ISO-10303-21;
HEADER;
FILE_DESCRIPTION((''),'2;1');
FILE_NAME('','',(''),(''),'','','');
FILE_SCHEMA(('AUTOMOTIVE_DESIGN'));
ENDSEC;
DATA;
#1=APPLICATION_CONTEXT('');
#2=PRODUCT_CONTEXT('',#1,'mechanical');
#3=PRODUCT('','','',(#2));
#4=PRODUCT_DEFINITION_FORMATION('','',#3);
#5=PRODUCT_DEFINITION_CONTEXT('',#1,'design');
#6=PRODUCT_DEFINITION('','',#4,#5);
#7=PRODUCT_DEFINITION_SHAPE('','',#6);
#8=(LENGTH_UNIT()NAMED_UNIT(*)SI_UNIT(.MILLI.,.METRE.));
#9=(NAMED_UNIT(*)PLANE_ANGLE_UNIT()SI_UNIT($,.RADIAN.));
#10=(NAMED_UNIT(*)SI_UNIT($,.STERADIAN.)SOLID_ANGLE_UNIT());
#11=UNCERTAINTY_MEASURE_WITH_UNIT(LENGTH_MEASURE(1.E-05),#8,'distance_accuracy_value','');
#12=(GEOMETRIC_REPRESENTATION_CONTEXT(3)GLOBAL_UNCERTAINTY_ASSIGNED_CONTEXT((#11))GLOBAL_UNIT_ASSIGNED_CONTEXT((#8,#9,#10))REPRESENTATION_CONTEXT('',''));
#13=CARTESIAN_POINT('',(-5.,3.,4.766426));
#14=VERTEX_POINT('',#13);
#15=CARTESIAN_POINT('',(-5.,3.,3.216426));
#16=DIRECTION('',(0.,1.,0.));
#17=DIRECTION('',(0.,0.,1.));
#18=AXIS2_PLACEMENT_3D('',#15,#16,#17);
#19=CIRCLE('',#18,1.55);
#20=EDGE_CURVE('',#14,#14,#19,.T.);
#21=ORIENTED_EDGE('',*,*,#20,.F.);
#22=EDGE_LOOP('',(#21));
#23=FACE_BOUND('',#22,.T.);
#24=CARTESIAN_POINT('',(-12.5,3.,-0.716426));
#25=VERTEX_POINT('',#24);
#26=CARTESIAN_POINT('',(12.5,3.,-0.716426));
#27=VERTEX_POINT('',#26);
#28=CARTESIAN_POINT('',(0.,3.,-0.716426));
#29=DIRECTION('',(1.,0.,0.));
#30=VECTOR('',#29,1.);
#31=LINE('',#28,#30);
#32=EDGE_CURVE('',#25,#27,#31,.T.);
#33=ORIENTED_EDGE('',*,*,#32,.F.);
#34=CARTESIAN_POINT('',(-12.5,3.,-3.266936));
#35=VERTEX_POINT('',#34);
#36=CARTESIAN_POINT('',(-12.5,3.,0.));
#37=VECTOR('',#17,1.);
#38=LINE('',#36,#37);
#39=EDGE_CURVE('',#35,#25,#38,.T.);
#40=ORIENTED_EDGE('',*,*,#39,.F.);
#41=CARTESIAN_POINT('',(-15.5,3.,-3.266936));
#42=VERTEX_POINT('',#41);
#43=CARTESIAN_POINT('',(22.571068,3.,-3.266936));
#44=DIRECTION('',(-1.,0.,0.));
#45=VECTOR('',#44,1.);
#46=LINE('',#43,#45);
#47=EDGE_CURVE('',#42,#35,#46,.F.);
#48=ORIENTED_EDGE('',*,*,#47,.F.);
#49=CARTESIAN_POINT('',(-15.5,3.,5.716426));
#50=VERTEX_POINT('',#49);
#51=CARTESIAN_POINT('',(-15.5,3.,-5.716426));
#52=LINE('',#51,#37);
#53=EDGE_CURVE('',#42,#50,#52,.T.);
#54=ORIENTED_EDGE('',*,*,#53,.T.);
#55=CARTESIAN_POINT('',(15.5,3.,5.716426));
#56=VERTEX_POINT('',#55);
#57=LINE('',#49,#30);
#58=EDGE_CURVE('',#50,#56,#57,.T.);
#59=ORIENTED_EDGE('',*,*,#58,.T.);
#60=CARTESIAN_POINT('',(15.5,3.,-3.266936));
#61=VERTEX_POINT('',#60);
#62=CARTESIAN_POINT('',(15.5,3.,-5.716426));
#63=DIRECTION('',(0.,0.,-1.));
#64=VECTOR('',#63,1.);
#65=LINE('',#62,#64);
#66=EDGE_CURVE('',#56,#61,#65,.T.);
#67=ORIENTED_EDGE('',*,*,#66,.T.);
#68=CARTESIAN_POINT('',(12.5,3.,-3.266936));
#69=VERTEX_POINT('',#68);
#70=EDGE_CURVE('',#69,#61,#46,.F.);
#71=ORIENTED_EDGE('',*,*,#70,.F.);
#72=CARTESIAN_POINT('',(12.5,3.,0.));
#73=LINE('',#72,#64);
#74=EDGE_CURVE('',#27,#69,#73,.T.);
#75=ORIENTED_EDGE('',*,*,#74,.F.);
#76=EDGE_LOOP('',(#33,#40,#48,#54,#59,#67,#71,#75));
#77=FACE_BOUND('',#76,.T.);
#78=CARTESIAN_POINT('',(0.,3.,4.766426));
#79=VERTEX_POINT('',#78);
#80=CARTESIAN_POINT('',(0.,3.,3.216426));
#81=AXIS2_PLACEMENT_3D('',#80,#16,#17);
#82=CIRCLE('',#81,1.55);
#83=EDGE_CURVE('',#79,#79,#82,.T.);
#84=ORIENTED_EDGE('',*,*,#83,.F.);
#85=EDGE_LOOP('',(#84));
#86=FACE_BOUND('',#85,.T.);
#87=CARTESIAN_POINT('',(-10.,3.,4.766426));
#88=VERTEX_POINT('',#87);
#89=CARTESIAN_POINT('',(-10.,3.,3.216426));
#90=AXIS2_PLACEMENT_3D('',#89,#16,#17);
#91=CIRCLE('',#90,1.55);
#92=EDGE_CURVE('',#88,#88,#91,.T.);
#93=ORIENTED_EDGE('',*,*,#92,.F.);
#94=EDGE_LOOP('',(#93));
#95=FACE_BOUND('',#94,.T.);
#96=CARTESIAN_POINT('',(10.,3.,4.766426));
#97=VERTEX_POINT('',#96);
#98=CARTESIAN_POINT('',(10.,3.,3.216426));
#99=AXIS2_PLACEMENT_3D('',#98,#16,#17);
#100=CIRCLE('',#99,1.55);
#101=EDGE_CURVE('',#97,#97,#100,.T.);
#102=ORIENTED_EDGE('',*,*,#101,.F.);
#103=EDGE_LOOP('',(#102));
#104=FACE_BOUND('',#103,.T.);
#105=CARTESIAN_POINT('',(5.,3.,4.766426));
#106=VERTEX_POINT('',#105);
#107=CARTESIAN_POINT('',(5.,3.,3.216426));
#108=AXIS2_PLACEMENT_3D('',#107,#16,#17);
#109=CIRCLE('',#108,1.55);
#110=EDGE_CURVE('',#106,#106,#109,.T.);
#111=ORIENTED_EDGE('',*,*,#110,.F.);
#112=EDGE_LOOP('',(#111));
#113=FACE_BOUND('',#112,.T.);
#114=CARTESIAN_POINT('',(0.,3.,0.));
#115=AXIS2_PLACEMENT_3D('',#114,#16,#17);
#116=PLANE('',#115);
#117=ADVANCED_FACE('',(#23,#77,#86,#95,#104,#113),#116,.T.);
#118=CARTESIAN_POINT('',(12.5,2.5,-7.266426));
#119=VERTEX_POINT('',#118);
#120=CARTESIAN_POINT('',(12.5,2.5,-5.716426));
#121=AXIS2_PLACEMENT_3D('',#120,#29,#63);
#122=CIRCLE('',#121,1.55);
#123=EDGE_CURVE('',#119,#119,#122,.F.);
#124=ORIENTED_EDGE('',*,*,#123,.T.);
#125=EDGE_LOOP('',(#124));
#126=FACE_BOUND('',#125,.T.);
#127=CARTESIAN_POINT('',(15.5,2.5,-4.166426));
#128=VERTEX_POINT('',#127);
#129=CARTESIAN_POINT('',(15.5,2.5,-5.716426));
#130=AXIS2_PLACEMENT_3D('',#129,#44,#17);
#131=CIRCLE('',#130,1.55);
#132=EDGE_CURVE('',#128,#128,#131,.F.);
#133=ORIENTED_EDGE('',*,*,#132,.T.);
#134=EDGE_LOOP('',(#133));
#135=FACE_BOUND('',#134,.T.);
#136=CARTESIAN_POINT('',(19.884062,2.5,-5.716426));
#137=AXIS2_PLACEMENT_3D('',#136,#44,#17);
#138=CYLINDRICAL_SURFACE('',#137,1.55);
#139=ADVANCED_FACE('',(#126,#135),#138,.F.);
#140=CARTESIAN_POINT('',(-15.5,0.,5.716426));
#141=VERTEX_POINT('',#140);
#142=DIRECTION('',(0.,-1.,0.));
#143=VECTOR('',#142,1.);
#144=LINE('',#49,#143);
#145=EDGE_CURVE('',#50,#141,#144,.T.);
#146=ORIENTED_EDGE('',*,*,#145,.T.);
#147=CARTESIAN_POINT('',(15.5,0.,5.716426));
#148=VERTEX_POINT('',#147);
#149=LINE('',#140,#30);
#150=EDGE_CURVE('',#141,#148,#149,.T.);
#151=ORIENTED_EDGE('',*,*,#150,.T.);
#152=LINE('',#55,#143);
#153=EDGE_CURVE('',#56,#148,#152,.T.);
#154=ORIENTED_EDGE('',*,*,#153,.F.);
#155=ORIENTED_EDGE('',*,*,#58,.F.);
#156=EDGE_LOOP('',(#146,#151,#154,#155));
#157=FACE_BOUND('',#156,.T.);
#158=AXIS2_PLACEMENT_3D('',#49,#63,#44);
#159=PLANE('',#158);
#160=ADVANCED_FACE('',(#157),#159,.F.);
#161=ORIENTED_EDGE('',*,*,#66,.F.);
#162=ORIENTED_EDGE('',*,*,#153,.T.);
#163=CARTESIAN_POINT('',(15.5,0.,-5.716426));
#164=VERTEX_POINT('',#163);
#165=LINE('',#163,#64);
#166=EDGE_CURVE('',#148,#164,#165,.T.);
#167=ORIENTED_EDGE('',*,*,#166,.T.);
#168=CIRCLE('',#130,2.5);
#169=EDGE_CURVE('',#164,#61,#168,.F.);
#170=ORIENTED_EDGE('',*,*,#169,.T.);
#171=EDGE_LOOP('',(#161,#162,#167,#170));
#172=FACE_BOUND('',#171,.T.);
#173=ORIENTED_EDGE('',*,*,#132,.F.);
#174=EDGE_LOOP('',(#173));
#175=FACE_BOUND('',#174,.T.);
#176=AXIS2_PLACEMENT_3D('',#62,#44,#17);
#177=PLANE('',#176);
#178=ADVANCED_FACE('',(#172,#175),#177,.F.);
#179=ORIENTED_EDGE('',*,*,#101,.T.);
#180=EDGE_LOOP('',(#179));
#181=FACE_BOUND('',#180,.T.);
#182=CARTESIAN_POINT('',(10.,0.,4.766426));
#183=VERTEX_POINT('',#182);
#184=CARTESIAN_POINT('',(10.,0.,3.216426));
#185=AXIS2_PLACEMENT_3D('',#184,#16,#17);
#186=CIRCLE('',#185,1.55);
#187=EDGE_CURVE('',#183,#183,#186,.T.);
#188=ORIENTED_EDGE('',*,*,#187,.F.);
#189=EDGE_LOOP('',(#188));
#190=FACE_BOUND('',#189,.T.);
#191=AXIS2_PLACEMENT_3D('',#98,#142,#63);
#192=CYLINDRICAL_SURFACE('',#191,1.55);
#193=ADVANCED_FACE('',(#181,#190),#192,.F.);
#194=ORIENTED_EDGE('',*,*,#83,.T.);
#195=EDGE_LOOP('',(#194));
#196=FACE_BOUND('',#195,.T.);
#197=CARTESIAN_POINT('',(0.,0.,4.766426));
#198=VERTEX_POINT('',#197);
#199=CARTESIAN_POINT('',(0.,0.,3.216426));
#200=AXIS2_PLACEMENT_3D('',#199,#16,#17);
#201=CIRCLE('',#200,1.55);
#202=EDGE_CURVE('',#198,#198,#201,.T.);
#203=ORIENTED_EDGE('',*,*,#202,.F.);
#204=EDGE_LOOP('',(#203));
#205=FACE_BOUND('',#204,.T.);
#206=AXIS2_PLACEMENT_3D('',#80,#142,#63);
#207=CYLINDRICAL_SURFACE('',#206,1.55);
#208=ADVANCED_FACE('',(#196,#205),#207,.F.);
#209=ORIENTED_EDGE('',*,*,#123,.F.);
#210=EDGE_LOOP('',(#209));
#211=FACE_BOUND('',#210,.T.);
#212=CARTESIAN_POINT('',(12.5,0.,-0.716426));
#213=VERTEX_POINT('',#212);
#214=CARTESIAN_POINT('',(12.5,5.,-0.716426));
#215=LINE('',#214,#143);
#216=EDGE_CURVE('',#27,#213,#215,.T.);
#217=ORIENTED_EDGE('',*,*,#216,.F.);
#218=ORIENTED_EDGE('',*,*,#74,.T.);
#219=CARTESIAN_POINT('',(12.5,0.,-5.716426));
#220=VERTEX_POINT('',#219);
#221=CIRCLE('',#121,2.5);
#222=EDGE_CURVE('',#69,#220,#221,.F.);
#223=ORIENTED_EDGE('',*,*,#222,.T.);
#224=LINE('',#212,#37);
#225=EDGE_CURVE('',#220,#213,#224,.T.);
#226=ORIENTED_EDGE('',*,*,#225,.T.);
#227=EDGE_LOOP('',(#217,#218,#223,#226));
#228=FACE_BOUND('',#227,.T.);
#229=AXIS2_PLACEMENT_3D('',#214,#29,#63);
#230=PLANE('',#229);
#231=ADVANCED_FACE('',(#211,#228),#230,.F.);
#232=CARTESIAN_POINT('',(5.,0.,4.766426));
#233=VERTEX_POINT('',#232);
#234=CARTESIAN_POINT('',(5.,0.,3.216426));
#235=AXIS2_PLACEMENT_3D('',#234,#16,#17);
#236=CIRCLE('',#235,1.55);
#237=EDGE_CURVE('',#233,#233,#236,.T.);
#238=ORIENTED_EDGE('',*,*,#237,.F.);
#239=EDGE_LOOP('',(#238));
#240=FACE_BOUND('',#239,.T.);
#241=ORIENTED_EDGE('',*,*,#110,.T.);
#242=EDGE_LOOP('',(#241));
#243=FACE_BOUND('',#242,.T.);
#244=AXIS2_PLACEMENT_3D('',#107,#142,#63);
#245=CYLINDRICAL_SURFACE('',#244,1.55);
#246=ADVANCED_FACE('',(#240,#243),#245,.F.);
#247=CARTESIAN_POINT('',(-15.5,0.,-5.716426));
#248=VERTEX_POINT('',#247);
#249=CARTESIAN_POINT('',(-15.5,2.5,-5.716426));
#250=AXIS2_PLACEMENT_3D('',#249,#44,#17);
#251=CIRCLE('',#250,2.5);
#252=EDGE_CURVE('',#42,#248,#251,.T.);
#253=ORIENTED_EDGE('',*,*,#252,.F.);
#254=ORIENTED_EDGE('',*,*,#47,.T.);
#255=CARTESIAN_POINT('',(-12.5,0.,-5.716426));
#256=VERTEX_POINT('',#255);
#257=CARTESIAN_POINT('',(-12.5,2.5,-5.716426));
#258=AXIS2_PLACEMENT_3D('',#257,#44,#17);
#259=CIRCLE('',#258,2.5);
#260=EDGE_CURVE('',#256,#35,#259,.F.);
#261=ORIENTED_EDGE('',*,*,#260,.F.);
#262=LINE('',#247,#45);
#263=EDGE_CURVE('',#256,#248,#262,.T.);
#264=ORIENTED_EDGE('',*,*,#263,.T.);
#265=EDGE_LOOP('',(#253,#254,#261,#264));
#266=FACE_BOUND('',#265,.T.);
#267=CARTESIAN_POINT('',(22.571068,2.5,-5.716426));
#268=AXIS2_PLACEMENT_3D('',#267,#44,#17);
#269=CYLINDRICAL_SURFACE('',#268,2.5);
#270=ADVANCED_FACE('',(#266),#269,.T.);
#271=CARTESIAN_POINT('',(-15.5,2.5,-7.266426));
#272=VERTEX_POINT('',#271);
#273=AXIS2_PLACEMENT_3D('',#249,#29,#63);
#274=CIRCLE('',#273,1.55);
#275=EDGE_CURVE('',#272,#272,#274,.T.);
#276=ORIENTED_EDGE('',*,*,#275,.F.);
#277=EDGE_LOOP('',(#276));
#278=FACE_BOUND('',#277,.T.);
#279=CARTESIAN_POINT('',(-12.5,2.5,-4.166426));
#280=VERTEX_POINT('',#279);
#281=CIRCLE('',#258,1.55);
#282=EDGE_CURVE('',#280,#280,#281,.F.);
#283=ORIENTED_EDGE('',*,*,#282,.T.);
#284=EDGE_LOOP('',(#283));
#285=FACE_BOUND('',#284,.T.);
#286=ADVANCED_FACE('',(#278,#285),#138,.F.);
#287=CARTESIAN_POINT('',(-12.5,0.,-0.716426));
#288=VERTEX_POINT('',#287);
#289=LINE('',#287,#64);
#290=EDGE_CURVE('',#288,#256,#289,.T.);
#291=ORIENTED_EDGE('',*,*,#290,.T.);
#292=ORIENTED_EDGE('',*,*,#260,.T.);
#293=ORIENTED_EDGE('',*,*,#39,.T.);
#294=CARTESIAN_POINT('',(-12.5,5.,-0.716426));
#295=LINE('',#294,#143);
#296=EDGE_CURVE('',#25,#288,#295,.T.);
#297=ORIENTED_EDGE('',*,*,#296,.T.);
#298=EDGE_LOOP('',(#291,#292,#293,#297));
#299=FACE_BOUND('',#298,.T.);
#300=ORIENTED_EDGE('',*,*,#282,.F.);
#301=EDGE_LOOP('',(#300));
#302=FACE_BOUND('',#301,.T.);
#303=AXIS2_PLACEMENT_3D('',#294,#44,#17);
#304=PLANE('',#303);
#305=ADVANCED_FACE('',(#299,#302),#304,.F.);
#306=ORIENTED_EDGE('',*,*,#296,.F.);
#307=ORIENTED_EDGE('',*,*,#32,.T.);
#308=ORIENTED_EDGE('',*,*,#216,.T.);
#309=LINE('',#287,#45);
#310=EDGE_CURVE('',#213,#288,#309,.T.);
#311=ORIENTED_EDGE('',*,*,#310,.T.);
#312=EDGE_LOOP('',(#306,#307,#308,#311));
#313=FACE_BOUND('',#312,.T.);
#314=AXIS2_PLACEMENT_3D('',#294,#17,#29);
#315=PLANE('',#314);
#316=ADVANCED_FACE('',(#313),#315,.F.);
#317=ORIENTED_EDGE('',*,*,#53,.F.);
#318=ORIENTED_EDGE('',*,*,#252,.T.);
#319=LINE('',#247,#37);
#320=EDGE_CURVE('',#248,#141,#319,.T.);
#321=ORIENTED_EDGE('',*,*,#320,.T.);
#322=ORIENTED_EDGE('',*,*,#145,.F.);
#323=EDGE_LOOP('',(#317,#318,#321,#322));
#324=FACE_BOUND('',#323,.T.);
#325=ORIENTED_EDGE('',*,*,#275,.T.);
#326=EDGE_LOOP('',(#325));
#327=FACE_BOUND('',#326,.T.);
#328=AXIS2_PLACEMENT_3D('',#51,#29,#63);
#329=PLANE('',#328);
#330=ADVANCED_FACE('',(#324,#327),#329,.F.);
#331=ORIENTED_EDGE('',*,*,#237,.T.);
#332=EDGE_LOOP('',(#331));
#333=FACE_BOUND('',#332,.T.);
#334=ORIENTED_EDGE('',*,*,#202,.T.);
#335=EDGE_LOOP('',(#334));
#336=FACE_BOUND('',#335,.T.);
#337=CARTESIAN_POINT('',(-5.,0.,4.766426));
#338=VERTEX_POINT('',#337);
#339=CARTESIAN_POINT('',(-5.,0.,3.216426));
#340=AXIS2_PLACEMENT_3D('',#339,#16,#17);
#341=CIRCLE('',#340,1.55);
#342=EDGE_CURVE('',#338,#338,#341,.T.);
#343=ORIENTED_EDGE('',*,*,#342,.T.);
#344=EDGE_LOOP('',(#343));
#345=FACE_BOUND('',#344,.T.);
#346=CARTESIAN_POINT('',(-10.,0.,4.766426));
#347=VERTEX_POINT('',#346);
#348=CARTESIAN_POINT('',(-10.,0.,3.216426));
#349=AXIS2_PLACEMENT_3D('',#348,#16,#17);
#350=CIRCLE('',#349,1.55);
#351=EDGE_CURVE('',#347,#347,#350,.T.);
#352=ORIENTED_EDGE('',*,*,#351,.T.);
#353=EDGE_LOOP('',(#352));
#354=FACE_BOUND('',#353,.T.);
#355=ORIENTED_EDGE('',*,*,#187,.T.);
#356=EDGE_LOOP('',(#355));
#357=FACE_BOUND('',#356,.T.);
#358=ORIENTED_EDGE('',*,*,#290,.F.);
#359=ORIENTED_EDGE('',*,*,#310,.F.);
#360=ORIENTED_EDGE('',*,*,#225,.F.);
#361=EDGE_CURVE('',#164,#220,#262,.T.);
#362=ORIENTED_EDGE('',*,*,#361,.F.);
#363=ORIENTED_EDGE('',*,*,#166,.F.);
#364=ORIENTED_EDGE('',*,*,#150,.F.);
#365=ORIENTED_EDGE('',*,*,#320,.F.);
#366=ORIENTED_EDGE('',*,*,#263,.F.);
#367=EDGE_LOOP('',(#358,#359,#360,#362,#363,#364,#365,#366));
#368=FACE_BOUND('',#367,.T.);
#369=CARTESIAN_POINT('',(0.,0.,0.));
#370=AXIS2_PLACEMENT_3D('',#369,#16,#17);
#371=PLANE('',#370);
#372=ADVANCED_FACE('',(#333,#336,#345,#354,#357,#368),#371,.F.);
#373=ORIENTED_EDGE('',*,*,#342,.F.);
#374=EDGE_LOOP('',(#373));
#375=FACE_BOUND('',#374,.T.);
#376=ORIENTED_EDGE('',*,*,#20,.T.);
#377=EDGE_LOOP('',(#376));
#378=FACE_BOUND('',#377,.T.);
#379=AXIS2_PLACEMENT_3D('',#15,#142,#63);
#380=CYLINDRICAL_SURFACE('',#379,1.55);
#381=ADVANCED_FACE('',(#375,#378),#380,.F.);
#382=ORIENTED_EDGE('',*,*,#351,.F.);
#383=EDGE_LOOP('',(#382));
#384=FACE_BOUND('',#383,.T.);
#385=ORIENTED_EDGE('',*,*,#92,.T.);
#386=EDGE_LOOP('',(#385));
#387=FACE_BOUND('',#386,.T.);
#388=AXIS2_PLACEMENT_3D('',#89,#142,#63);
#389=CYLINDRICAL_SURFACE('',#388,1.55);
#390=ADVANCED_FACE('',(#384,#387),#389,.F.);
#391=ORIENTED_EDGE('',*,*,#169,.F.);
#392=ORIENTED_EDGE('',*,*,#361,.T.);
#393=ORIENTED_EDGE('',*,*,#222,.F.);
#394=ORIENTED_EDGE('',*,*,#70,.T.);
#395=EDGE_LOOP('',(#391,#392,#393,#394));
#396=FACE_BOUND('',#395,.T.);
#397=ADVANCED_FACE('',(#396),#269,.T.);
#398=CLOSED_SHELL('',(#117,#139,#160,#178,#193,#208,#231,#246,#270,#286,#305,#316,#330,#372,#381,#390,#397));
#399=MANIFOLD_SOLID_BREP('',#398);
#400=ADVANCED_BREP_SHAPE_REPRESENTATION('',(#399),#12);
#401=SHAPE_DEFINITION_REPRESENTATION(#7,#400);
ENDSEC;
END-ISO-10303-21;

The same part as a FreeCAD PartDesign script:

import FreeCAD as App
import Part
import Sketcher
Q = App.Units.Quantity


def add_polygon(sketch, points):
    """Adds a closed chain of lines whose ends are joined by coincident constraints."""
    first, n = sketch.GeometryCount, len(points)
    for a, b in zip(points, points[1:] + points[:1]):
        sketch.addGeometry(Part.LineSegment(App.Vector(*a, 0), App.Vector(*b, 0)), False)
    for i in range(n):
        sketch.addConstraint(Sketcher.Constraint("Coincident", first + i, 2, first + (i + 1) % n, 1))

doc = App.newDocument("Part")
body = doc.addObject("PartDesign::Body", "Body")

sketch1 = body.newObject("Sketcher::SketchObject", "Sketch")
sketch1.AttachmentSupport = (doc.getObject("XZ_Plane"), [""])
sketch1.MapMode = "FlatFace"
add_polygon(sketch1, [(-15.5, -5.716426), (-15.5, 5.716426), (15.5, 5.716426), (15.5, -5.716426)])
sketch1.addGeometry(Part.Circle(App.Vector(-10, 3.216426, 0), App.Vector(0, 0, 1), 1.55), False)
sketch1.addGeometry(Part.Circle(App.Vector(-5, 3.216426, 0), App.Vector(0, 0, 1), 1.55), False)
sketch1.addGeometry(Part.Circle(App.Vector(0, 3.216426, 0), App.Vector(0, 0, 1), 1.55), False)
sketch1.addGeometry(Part.Circle(App.Vector(5, 3.216426, 0), App.Vector(0, 0, 1), 1.55), False)
sketch1.addGeometry(Part.Circle(App.Vector(10, 3.216426, 0), App.Vector(0, 0, 1), 1.55), False)
sketch1.addConstraint(Sketcher.Constraint("Vertical", 0))
sketch1.addConstraint(Sketcher.Constraint("Horizontal", 1))
sketch1.addConstraint(Sketcher.Constraint("Vertical", 2))
sketch1.addConstraint(Sketcher.Constraint("Horizontal", 3))
sketch1.addConstraint(Sketcher.Constraint("Equal", 4, 5))
sketch1.addConstraint(Sketcher.Constraint("Equal", 5, 6))
sketch1.addConstraint(Sketcher.Constraint("Equal", 6, 7))
sketch1.addConstraint(Sketcher.Constraint("Equal", 7, 8))
sketch1.addConstraint(Sketcher.Constraint("Symmetric", 0, 2, 2, 2, -1, 1))
sketch1.addConstraint(Sketcher.Constraint("Symmetric", 5, 3, 7, 3, -2))
sketch1.addConstraint(Sketcher.Constraint("Symmetric", 4, 3, 8, 3, -2))
sketch1.addConstraint(Sketcher.Constraint("PointOnObject", 6, 3, -2))
sketch1.addConstraint(Sketcher.Constraint("Horizontal", 4, 3, 5, 3))
sketch1.addConstraint(Sketcher.Constraint("Horizontal", 5, 3, 6, 3))
sketch1.addConstraint(Sketcher.Constraint("Diameter", 4, Q("3.1 mm")))
sketch1.addConstraint(Sketcher.Constraint("DistanceX", 1, 1, 1, 2, Q("31 mm")))
sketch1.addConstraint(Sketcher.Constraint("DistanceX", 4, 3, -1, 1, Q("10 mm")))
sketch1.addConstraint(Sketcher.Constraint("DistanceX", 5, 3, -1, 1, Q("5 mm")))
sketch1.addConstraint(Sketcher.Constraint("DistanceY", 4, 3, 0, 2, Q("2.5 mm")))
sketch1.addConstraint(Sketcher.Constraint("DistanceY", 0, 1, 0, 2, Q("11.432851 mm")))
pad1 = body.newObject("PartDesign::Pad", "Pad")
pad1.Profile = sketch1
pad1.Length = 3
pad1.Reversed = True

sketch2 = body.newObject("Sketcher::SketchObject", "Sketch001")
sketch2.AttachmentSupport = (doc.getObject("YZ_Plane"), [""])
sketch2.MapMode = "FlatFace"
sketch2.AttachmentOffset = App.Placement(App.Vector(0, 0, -15.5), App.Rotation())
sketch2.addGeometry(Part.Circle(App.Vector(2.5, -5.716426, 0), App.Vector(0, 0, 1), 1.55), False)
sketch2.addConstraint(Sketcher.Constraint("Diameter", 0, Q("3.1 mm")))
sketch2.addConstraint(Sketcher.Constraint("DistanceX", -1, 1, 0, 3, Q("2.5 mm")))
sketch2.addConstraint(Sketcher.Constraint("DistanceY", 0, 3, -1, 1, Q("5.716426 mm")))
pocket1 = body.newObject("PartDesign::Pocket", "Pocket")
pocket1.Profile = sketch2
pocket1.Length = 31
pocket1.Reversed = True

sketch3 = body.newObject("Sketcher::SketchObject", "Sketch002")
sketch3.AttachmentSupport = (doc.getObject("YZ_Plane"), [""])
sketch3.MapMode = "FlatFace"
sketch3.AttachmentOffset = App.Placement(App.Vector(0, 0, -15.5), App.Rotation())
sketch3.addGeometry(Part.Circle(App.Vector(2.5, -5.716426, 0), App.Vector(0, 0, 1), 2.5), False)
sketch3.addGeometry(Part.Circle(App.Vector(2.5, -5.716426, 0), App.Vector(0, 0, 1), 1.55), False)
sketch3.addConstraint(Sketcher.Constraint("Coincident", 1, 3, 0, 3))
sketch3.addConstraint(Sketcher.Constraint("Diameter", 0, Q("5 mm")))
sketch3.addConstraint(Sketcher.Constraint("Diameter", 1, Q("3.1 mm")))
sketch3.addConstraint(Sketcher.Constraint("DistanceX", -1, 1, 0, 3, Q("2.5 mm")))
sketch3.addConstraint(Sketcher.Constraint("DistanceY", 0, 3, -1, 1, Q("5.716426 mm")))
pad2 = body.newObject("PartDesign::Pad", "Pad001")
pad2.Profile = sketch3
pad2.Length = 31

sketch4 = body.newObject("Sketcher::SketchObject", "Sketch003")
sketch4.AttachmentSupport = (doc.getObject("XZ_Plane"), [""])
sketch4.MapMode = "FlatFace"
add_polygon(sketch4, [(-12.5, -0.716426), (-12.5, -8.216426), (12.5, -8.216426), (12.5, -0.716426)])
sketch4.addConstraint(Sketcher.Constraint("Vertical", 0))
sketch4.addConstraint(Sketcher.Constraint("Horizontal", 1))
sketch4.addConstraint(Sketcher.Constraint("Vertical", 2))
sketch4.addConstraint(Sketcher.Constraint("Horizontal", 3))
sketch4.addConstraint(Sketcher.Constraint("DistanceX", 1, 1, 1, 2, Q("25 mm")))
sketch4.addConstraint(Sketcher.Constraint("DistanceY", 0, 2, 0, 1, Q("7.5 mm")))
sketch4.addConstraint(Sketcher.Constraint("DistanceX", 0, 2, -1, 1, Q("12.5 mm")))
sketch4.addConstraint(Sketcher.Constraint("DistanceY", 0, 2, -1, 1, Q("8.216426 mm")))
pocket2 = body.newObject("PartDesign::Pocket", "Pocket001")
pocket2.Profile = sketch4
pocket2.Type = "ThroughAll"

doc.recompute()
